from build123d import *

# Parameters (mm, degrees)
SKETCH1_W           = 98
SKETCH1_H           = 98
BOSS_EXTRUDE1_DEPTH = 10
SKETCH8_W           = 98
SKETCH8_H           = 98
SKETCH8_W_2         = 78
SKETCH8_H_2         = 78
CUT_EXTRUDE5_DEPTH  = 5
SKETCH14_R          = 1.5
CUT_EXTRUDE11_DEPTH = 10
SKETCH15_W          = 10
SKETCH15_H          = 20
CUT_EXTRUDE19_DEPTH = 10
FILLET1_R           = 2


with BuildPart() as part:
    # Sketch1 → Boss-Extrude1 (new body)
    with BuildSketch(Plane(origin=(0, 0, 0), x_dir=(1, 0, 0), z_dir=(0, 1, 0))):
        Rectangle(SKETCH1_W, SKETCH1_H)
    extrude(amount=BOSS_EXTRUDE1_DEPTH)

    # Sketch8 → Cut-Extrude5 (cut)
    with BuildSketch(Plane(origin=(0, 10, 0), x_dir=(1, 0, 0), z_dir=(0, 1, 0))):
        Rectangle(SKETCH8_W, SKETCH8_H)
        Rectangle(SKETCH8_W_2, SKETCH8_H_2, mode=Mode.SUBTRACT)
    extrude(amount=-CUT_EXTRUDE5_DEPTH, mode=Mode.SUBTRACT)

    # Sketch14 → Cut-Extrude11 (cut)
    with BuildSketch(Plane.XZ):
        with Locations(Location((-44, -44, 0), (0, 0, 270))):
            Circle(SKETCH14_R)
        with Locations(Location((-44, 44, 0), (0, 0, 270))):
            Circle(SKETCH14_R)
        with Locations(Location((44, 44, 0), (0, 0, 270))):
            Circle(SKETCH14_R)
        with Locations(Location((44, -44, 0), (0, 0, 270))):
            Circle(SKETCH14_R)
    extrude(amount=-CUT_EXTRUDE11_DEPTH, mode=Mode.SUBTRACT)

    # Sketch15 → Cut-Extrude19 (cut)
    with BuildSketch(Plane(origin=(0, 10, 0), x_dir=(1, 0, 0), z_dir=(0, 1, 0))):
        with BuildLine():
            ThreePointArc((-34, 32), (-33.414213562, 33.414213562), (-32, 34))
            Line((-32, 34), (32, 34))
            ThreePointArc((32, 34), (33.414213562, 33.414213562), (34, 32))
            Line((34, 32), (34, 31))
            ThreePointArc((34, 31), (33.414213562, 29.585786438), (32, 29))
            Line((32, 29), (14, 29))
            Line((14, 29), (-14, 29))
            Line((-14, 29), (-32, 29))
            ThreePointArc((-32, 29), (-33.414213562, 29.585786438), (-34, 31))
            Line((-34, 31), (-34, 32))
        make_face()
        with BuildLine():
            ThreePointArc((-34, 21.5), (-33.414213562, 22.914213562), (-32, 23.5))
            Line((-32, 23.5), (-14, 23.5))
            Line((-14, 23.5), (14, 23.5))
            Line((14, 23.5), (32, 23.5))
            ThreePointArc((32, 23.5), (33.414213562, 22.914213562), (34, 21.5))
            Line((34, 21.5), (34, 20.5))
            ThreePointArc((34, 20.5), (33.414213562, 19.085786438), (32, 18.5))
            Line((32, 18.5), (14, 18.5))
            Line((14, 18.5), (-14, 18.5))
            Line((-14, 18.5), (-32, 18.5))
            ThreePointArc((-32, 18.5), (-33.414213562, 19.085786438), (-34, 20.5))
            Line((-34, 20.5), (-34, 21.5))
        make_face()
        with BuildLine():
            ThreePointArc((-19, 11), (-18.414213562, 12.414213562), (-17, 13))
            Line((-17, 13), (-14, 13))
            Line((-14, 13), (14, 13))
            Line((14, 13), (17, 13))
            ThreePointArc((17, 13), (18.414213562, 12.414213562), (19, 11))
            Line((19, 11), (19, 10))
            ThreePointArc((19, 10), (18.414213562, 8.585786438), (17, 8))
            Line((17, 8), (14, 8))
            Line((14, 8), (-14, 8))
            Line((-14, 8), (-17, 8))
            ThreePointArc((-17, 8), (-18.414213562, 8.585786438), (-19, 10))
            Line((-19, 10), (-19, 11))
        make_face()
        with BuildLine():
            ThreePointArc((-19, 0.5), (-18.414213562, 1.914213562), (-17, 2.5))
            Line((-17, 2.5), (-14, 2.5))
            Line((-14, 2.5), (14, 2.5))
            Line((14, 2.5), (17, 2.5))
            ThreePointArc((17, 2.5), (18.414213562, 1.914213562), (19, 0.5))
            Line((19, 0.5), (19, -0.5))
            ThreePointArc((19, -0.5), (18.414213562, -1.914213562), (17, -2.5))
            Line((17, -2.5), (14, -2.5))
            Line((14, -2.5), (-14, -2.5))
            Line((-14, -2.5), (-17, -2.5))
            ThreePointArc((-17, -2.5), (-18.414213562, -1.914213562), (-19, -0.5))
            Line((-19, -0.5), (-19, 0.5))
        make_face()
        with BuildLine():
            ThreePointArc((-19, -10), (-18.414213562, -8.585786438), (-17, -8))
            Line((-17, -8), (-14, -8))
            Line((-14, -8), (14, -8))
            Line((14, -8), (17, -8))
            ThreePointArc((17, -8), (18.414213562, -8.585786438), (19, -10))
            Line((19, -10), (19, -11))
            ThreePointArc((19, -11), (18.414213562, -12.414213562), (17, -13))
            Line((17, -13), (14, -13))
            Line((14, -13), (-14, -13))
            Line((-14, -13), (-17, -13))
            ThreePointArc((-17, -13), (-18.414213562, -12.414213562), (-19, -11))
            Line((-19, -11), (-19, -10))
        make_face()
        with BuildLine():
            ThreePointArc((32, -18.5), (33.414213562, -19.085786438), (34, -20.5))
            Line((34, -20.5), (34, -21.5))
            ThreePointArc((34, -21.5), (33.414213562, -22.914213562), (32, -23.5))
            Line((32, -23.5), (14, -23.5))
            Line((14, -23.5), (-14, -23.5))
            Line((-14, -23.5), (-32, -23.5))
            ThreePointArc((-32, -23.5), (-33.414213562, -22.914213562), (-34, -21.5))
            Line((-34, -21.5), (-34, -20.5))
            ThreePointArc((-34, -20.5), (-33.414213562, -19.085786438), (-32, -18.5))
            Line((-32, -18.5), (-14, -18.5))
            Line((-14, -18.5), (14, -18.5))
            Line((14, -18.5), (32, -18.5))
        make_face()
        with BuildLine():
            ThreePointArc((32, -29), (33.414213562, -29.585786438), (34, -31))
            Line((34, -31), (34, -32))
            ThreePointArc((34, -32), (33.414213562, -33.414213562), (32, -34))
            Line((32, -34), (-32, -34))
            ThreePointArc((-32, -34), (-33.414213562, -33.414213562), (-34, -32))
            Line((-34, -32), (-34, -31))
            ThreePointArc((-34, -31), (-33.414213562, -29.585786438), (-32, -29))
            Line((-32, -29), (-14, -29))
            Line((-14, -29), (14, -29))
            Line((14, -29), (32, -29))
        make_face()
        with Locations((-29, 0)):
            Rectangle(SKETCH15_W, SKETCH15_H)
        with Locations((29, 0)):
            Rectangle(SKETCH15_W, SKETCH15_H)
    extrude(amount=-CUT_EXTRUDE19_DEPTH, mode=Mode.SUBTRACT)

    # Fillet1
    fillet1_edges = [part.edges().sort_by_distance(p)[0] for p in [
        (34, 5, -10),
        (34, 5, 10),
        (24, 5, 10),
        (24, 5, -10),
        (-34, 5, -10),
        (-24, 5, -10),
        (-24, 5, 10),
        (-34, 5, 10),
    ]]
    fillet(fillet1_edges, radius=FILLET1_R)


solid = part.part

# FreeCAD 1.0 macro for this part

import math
import FreeCAD as App
import Part
import Sketcher

V = App.Vector


def edges_at(feature, points):
    """Names of the edges that pass closest to the given points."""
    edges = feature.Shape.Edges
    near = lambda p: min(range(len(edges)), key=lambda i: edges[i].distToShape(Part.Vertex(*p))[0])
    return sorted({f"Edge{near(p) + 1}" for p in points})


def add_polygon(sketch, points):
    """Adds a closed chain of lines whose ends are joined by coincident constraints."""
    first, n = sketch.GeometryCount, len(points)
    for a, b in zip(points, points[1:] + points[:1]):
        sketch.addGeometry(Part.LineSegment(App.Vector(*a, 0), App.Vector(*b, 0)), False)
    for i in range(n):
        sketch.addConstraint(Sketcher.Constraint("Coincident", first + i, 2, first + (i + 1) % n, 1))

doc = App.newDocument("Part")
params = doc.addObject("Spreadsheet::Sheet", "Params")
for row, (alias, value) in enumerate([
    ("sketch1_width", "98 mm"),
    ("pad1_length", "10 mm"),
    ("sketch2_width", "98 mm"),
    ("sketch2_width2", "78 mm"),
    ("pocket1_length", "5 mm"),
    ("sketch3_diameter", "3 mm"),
    ("pocket2_length", "10 mm"),
    ("sketch4_radius", "2 mm"),
    ("sketch4_width", "64 mm"),
    ("sketch4_width2", "34 mm"),
    ("sketch4_width3", "10 mm"),
    ("sketch4_height", "1 mm"),
    ("pocket3_length", "10 mm"),
    ("fillet_radius", "2 mm"),
], start=1):
    params.set(f"A{row}", alias)
    params.set(f"B{row}", "=" + value)
    params.setAlias(f"B{row}", alias)

body = doc.addObject("PartDesign::Body", "Body")

sketch1 = body.newObject("Sketcher::SketchObject", "Sketch")
sketch1.AttachmentSupport = (doc.getObject("XZ_Plane"), [""])
sketch1.MapMode = "FlatFace"
add_polygon(sketch1, [(-49, -49), (-49, 49), (49, 49), (49, -49)])
sketch1.addConstraint([
    Sketcher.Constraint("Vertical", 0),
    Sketcher.Constraint("Horizontal", 1),
    Sketcher.Constraint("Vertical", 2),
    Sketcher.Constraint("Horizontal", 3),
    Sketcher.Constraint("Symmetric", 0, 2, 2, 2, -1, 1),
    Sketcher.Constraint("Equal", 3, 0),
    Sketcher.Constraint("DistanceX", 1, 1, 1, 2, 98.0),
])
sketch1.setExpression("Constraints[10]", "Params.sketch1_width")
pad1 = body.newObject("PartDesign::Pad", "Pad")
pad1.Profile = sketch1
pad1.setExpression("Length", "Params.pad1_length")
pad1.Reversed = True

sketch2 = body.newObject("Sketcher::SketchObject", "Sketch001")
sketch2.AttachmentSupport = (doc.getObject("XZ_Plane"), [""])
sketch2.MapMode = "FlatFace"
sketch2.AttachmentOffset = App.Placement(V(0, 0, -10), App.Rotation())
add_polygon(sketch2, [(-49, -49), (-49, 49), (49, 49), (49, -49)])
add_polygon(sketch2, [(39, 39), (-39, 39), (-39, -39), (39, -39)])
sketch2.addConstraint([
    Sketcher.Constraint("Vertical", 0),
    Sketcher.Constraint("Horizontal", 1),
    Sketcher.Constraint("Vertical", 2),
    Sketcher.Constraint("Horizontal", 3),
    Sketcher.Constraint("Horizontal", 4),
    Sketcher.Constraint("Vertical", 5),
    Sketcher.Constraint("Horizontal", 6),
    Sketcher.Constraint("Vertical", 7),
    Sketcher.Constraint("Symmetric", 0, 2, 2, 2, -1, 1),
    Sketcher.Constraint("Symmetric", 4, 2, 6, 2, -1, 1),
    Sketcher.Constraint("Equal", 3, 0),
    Sketcher.Constraint("Equal", 6, 5),
    Sketcher.Constraint("DistanceX", 1, 1, 1, 2, 98.0),
    Sketcher.Constraint("DistanceX", 4, 2, 4, 1, 78.0),
])
sketch2.setExpression("Constraints[20]", "Params.sketch2_width")
sketch2.setExpression("Constraints[21]", "Params.sketch2_width2")
pocket1 = body.newObject("PartDesign::Pocket", "Pocket")
pocket1.Profile = sketch2
pocket1.setExpression("Length", "Params.pocket1_length")
pocket1.Reversed = True

sketch3 = body.newObject("Sketcher::SketchObject", "Sketch002")
sketch3.AttachmentSupport = (doc.getObject("XZ_Plane"), [""])
sketch3.MapMode = "FlatFace"
sketch3.addGeometry([
    Part.Circle(V(-44, -44, 0), V(0, 0, 1), 1.5),
    Part.Circle(V(-44, 44, 0), V(0, 0, 1), 1.5),
    Part.Circle(V(44, 44, 0), V(0, 0, 1), 1.5),
    Part.Circle(V(44, -44, 0), V(0, 0, 1), 1.5),
], False)
sketch3.addConstraint([
    Sketcher.Constraint("Equal", 0, 1),
    Sketcher.Constraint("Equal", 1, 2),
    Sketcher.Constraint("Equal", 2, 3),
    Sketcher.Constraint("Symmetric", 0, 3, 2, 3, -1, 1),
    Sketcher.Constraint("Symmetric", 1, 3, 3, 3, -1, 1),
    Sketcher.Constraint("Symmetric", 1, 3, 2, 3, -2),
    Sketcher.Constraint("Diameter", 0, 3.0),
    Sketcher.Constraint("DistanceX", 0, 3, -1, 1, 44.0),
    Sketcher.Constraint("DistanceY", 0, 3, -1, 1, 44.0),
])
sketch3.setExpression("Constraints[6]", "Params.sketch3_diameter")
pocket2 = body.newObject("PartDesign::Pocket", "Pocket001")
pocket2.Profile = sketch3
pocket2.setExpression("Length", "Params.pocket2_length")

sketch4 = body.newObject("Sketcher::SketchObject", "Sketch003")
sketch4.AttachmentSupport = (doc.getObject("XZ_Plane"), [""])
sketch4.MapMode = "FlatFace"
sketch4.AttachmentOffset = App.Placement(V(0, 0, -10), App.Rotation())
sketch4.addGeometry(Part.ArcOfCircle(Part.Circle(V(-32, -32, 0), V(0, 0, 1), 2), math.radians(-180), math.radians(-90)), False)
sketch4.addGeometry(Part.LineSegment(V(-34, -32, 0), V(-34, -31, 0)), False)
sketch4.addGeometry(Part.ArcOfCircle(Part.Circle(V(-32, -31, 0), V(0, 0, 1), 2), math.radians(90), math.radians(180)), False)
sketch4.addGeometry(Part.LineSegment(V(-32, -29, 0), V(32, -29, 0)), False)
sketch4.addGeometry(Part.ArcOfCircle(Part.Circle(V(32, -31, 0), V(0, 0, 1), 2), math.radians(0), math.radians(90)), False)
sketch4.addGeometry(Part.LineSegment(V(34, -31, 0), V(34, -32, 0)), False)
sketch4.addGeometry(Part.ArcOfCircle(Part.Circle(V(32, -32, 0), V(0, 0, 1), 2), math.radians(-90), math.radians(0)), False)
sketch4.addGeometry(Part.LineSegment(V(32, -34, 0), V(-32, -34, 0)), False)
sketch4.addGeometry(Part.ArcOfCircle(Part.Circle(V(-32, -21.5, 0), V(0, 0, 1), 2), math.radians(-180), math.radians(-90)), False)
sketch4.addGeometry(Part.LineSegment(V(-34, -21.5, 0), V(-34, -20.5, 0)), False)
sketch4.addGeometry(Part.ArcOfCircle(Part.Circle(V(-32, -20.5, 0), V(0, 0, 1), 2), math.radians(90), math.radians(180)), False)
sketch4.addGeometry(Part.LineSegment(V(-32, -18.5, 0), V(32, -18.5, 0)), False)
sketch4.addGeometry(Part.ArcOfCircle(Part.Circle(V(32, -20.5, 0), V(0, 0, 1), 2), math.radians(0), math.radians(90)), False)
sketch4.addGeometry(Part.LineSegment(V(34, -20.5, 0), V(34, -21.5, 0)), False)
sketch4.addGeometry(Part.ArcOfCircle(Part.Circle(V(32, -21.5, 0), V(0, 0, 1), 2), math.radians(-90), math.radians(0)), False)
sketch4.addGeometry(Part.LineSegment(V(32, -23.5, 0), V(-32, -23.5, 0)), False)
sketch4.addGeometry(Part.ArcOfCircle(Part.Circle(V(-17, -11, 0), V(0, 0, 1), 2), math.radians(-180), math.radians(-90)), False)
sketch4.addGeometry(Part.LineSegment(V(-19, -11, 0), V(-19, -10, 0)), False)
sketch4.addGeometry(Part.ArcOfCircle(Part.Circle(V(-17, -10, 0), V(0, 0, 1), 2), math.radians(90), math.radians(180)), False)
sketch4.addGeometry(Part.LineSegment(V(-17, -8, 0), V(17, -8, 0)), False)
sketch4.addGeometry(Part.ArcOfCircle(Part.Circle(V(17, -10, 0), V(0, 0, 1), 2), math.radians(0), math.radians(90)), False)
sketch4.addGeometry(Part.LineSegment(V(19, -10, 0), V(19, -11, 0)), False)
sketch4.addGeometry(Part.ArcOfCircle(Part.Circle(V(17, -11, 0), V(0, 0, 1), 2), math.radians(-90), math.radians(0)), False)
sketch4.addGeometry(Part.LineSegment(V(17, -13, 0), V(-17, -13, 0)), False)
sketch4.addGeometry(Part.ArcOfCircle(Part.Circle(V(-17, -0.5, 0), V(0, 0, 1), 2), math.radians(-180), math.radians(-90)), False)
sketch4.addGeometry(Part.LineSegment(V(-19, -0.5, 0), V(-19, 0.5, 0)), False)
sketch4.addGeometry(Part.ArcOfCircle(Part.Circle(V(-17, 0.5, 0), V(0, 0, 1), 2), math.radians(90), math.radians(180)), False)
sketch4.addGeometry(Part.LineSegment(V(-17, 2.5, 0), V(17, 2.5, 0)), False)
sketch4.addGeometry(Part.ArcOfCircle(Part.Circle(V(17, 0.5, 0), V(0, 0, 1), 2), math.radians(0), math.radians(90)), False)
sketch4.addGeometry(Part.LineSegment(V(19, 0.5, 0), V(19, -0.5, 0)), False)
sketch4.addGeometry(Part.ArcOfCircle(Part.Circle(V(17, -0.5, 0), V(0, 0, 1), 2), math.radians(-90), math.radians(0)), False)
sketch4.addGeometry(Part.LineSegment(V(17, -2.5, 0), V(-17, -2.5, 0)), False)
sketch4.addGeometry(Part.ArcOfCircle(Part.Circle(V(-17, 10, 0), V(0, 0, 1), 2), math.radians(-180), math.radians(-90)), False)
sketch4.addGeometry(Part.LineSegment(V(-19, 10, 0), V(-19, 11, 0)), False)
sketch4.addGeometry(Part.ArcOfCircle(Part.Circle(V(-17, 11, 0), V(0, 0, 1), 2), math.radians(90), math.radians(180)), False)
sketch4.addGeometry(Part.LineSegment(V(-17, 13, 0), V(17, 13, 0)), False)
sketch4.addGeometry(Part.ArcOfCircle(Part.Circle(V(17, 11, 0), V(0, 0, 1), 2), math.radians(0), math.radians(90)), False)
sketch4.addGeometry(Part.LineSegment(V(19, 11, 0), V(19, 10, 0)), False)
sketch4.addGeometry(Part.ArcOfCircle(Part.Circle(V(17, 10, 0), V(0, 0, 1), 2), math.radians(-90), math.radians(0)), False)
sketch4.addGeometry(Part.LineSegment(V(17, 8, 0), V(-17, 8, 0)), False)
sketch4.addGeometry(Part.ArcOfCircle(Part.Circle(V(32, 20.5, 0), V(0, 0, 1), 2), math.radians(-90), math.radians(0)), False)
sketch4.addGeometry(Part.LineSegment(V(32, 18.5, 0), V(-32, 18.5, 0)), False)
sketch4.addGeometry(Part.ArcOfCircle(Part.Circle(V(-32, 20.5, 0), V(0, 0, 1), 2), math.radians(-180), math.radians(-90)), False)
sketch4.addGeometry(Part.LineSegment(V(-34, 20.5, 0), V(-34, 21.5, 0)), False)
sketch4.addGeometry(Part.ArcOfCircle(Part.Circle(V(-32, 21.5, 0), V(0, 0, 1), 2), math.radians(90), math.radians(180)), False)
sketch4.addGeometry(Part.LineSegment(V(-32, 23.5, 0), V(32, 23.5, 0)), False)
sketch4.addGeometry(Part.ArcOfCircle(Part.Circle(V(32, 21.5, 0), V(0, 0, 1), 2), math.radians(0), math.radians(90)), False)
sketch4.addGeometry(Part.LineSegment(V(34, 21.5, 0), V(34, 20.5, 0)), False)
sketch4.addGeometry(Part.ArcOfCircle(Part.Circle(V(32, 31, 0), V(0, 0, 1), 2), math.radians(-90), math.radians(0)), False)
sketch4.addGeometry(Part.LineSegment(V(32, 29, 0), V(-32, 29, 0)), False)
sketch4.addGeometry(Part.ArcOfCircle(Part.Circle(V(-32, 31, 0), V(0, 0, 1), 2), math.radians(-180), math.radians(-90)), False)
sketch4.addGeometry(Part.LineSegment(V(-34, 31, 0), V(-34, 32, 0)), False)
sketch4.addGeometry(Part.ArcOfCircle(Part.Circle(V(-32, 32, 0), V(0, 0, 1), 2), math.radians(90), math.radians(180)), False)
sketch4.addGeometry(Part.LineSegment(V(-32, 34, 0), V(32, 34, 0)), False)
sketch4.addGeometry(Part.ArcOfCircle(Part.Circle(V(32, 32, 0), V(0, 0, 1), 2), math.radians(0), math.radians(90)), False)
sketch4.addGeometry(Part.LineSegment(V(34, 32, 0), V(34, 31, 0)), False)
add_polygon(sketch4, [(-34, -10), (-34, 10), (-24, 10), (-24, -10)])
add_polygon(sketch4, [(24, -10), (24, 10), (34, 10), (34, -10)])
sketch4.addConstraint([
    Sketcher.Constraint("Tangent", 0, 1, 1, 1),
    Sketcher.Constraint("Tangent", 1, 2, 2, 2),
    Sketcher.Constraint("Tangent", 2, 1, 3, 1),
    Sketcher.Constraint("Tangent", 3, 2, 4, 2),
    Sketcher.Constraint("Tangent", 4, 1, 5, 1),
    Sketcher.Constraint("Tangent", 5, 2, 6, 2),
    Sketcher.Constraint("Tangent", 6, 1, 7, 1),
    Sketcher.Constraint("Tangent", 7, 2, 0, 2),
    Sketcher.Constraint("Tangent", 8, 1, 9, 1),
    Sketcher.Constraint("Tangent", 9, 2, 10, 2),
    Sketcher.Constraint("Tangent", 10, 1, 11, 1),
    Sketcher.Constraint("Tangent", 11, 2, 12, 2),
    Sketcher.Constraint("Tangent", 12, 1, 13, 1),
    Sketcher.Constraint("Tangent", 13, 2, 14, 2),
    Sketcher.Constraint("Tangent", 14, 1, 15, 1),
    Sketcher.Constraint("Tangent", 15, 2, 8, 2),
    Sketcher.Constraint("Tangent", 16, 1, 17, 1),
    Sketcher.Constraint("Tangent", 17, 2, 18, 2),
    Sketcher.Constraint("Tangent", 18, 1, 19, 1),
    Sketcher.Constraint("Tangent", 19, 2, 20, 2),
    Sketcher.Constraint("Tangent", 20, 1, 21, 1),
    Sketcher.Constraint("Tangent", 21, 2, 22, 2),
    Sketcher.Constraint("Tangent", 22, 1, 23, 1),
    Sketcher.Constraint("Tangent", 23, 2, 16, 2),
    Sketcher.Constraint("Tangent", 24, 1, 25, 1),
    Sketcher.Constraint("Tangent", 25, 2, 26, 2),
    Sketcher.Constraint("Tangent", 26, 1, 27, 1),
    Sketcher.Constraint("Tangent", 27, 2, 28, 2),
    Sketcher.Constraint("Tangent", 28, 1, 29, 1),
    Sketcher.Constraint("Tangent", 29, 2, 30, 2),
    Sketcher.Constraint("Tangent", 30, 1, 31, 1),
    Sketcher.Constraint("Tangent", 31, 2, 24, 2),
    Sketcher.Constraint("Tangent", 32, 1, 33, 1),
    Sketcher.Constraint("Tangent", 33, 2, 34, 2),
    Sketcher.Constraint("Tangent", 34, 1, 35, 1),
    Sketcher.Constraint("Tangent", 35, 2, 36, 2),
    Sketcher.Constraint("Tangent", 36, 1, 37, 1),
    Sketcher.Constraint("Tangent", 37, 2, 38, 2),
    Sketcher.Constraint("Tangent", 38, 1, 39, 1),
    Sketcher.Constraint("Tangent", 39, 2, 32, 2),
    Sketcher.Constraint("Tangent", 40, 1, 41, 1),
    Sketcher.Constraint("Tangent", 41, 2, 42, 2),
    Sketcher.Constraint("Tangent", 42, 1, 43, 1),
    Sketcher.Constraint("Tangent", 43, 2, 44, 2),
    Sketcher.Constraint("Tangent", 44, 1, 45, 1),
    Sketcher.Constraint("Tangent", 45, 2, 46, 2),
    Sketcher.Constraint("Tangent", 46, 1, 47, 1),
    Sketcher.Constraint("Tangent", 47, 2, 40, 2),
    Sketcher.Constraint("Tangent", 48, 1, 49, 1),
    Sketcher.Constraint("Tangent", 49, 2, 50, 2),
    Sketcher.Constraint("Tangent", 50, 1, 51, 1),
    Sketcher.Constraint("Tangent", 51, 2, 52, 2),
    Sketcher.Constraint("Tangent", 52, 1, 53, 1),
    Sketcher.Constraint("Tangent", 53, 2, 54, 2),
    Sketcher.Constraint("Tangent", 54, 1, 55, 1),
    Sketcher.Constraint("Tangent", 55, 2, 48, 2),
    Sketcher.Constraint("Vertical", 1),
    Sketcher.Constraint("Horizontal", 3),
    Sketcher.Constraint("Vertical", 5),
    Sketcher.Constraint("Horizontal", 7),
    Sketcher.Constraint("Vertical", 9),
    Sketcher.Constraint("Horizontal", 11),
    Sketcher.Constraint("Vertical", 13),
    Sketcher.Constraint("Horizontal", 15),
    Sketcher.Constraint("Vertical", 17),
    Sketcher.Constraint("Horizontal", 19),
    Sketcher.Constraint("Vertical", 21),
    Sketcher.Constraint("Horizontal", 23),
    Sketcher.Constraint("Vertical", 25),
    Sketcher.Constraint("Horizontal", 27),
    Sketcher.Constraint("Vertical", 29),
    Sketcher.Constraint("Horizontal", 31),
    Sketcher.Constraint("Vertical", 33),
    Sketcher.Constraint("Horizontal", 35),
    Sketcher.Constraint("Vertical", 37),
    Sketcher.Constraint("Horizontal", 39),
    Sketcher.Constraint("Horizontal", 41),
    Sketcher.Constraint("Vertical", 43),
    Sketcher.Constraint("Horizontal", 45),
    Sketcher.Constraint("Vertical", 47),
    Sketcher.Constraint("Horizontal", 49),
    Sketcher.Constraint("Vertical", 51),
    Sketcher.Constraint("Horizontal", 53),
    Sketcher.Constraint("Vertical", 55),
    Sketcher.Constraint("Vertical", 56),
    Sketcher.Constraint("Horizontal", 57),
    Sketcher.Constraint("Vertical", 58),
    Sketcher.Constraint("Horizontal", 59),
    Sketcher.Constraint("Vertical", 60),
    Sketcher.Constraint("Horizontal", 61),
    Sketcher.Constraint("Vertical", 62),
    Sketcher.Constraint("Horizontal", 63),
    Sketcher.Constraint("Equal", 0, 2),
    Sketcher.Constraint("Equal", 2, 4),
    Sketcher.Constraint("Equal", 4, 6),
    Sketcher.Constraint("Equal", 6, 8),
    Sketcher.Constraint("Equal", 8, 10),
    Sketcher.Constraint("Equal", 10, 12),
    Sketcher.Constraint("Equal", 12, 14),
    Sketcher.Constraint("Equal", 14, 16),
    Sketcher.Constraint("Equal", 16, 18),
    Sketcher.Constraint("Equal", 18, 20),
    Sketcher.Constraint("Equal", 20, 22),
    Sketcher.Constraint("Equal", 22, 24),
    Sketcher.Constraint("Equal", 24, 26),
    Sketcher.Constraint("Equal", 26, 28),
    Sketcher.Constraint("Equal", 28, 30),
    Sketcher.Constraint("Equal", 30, 32),
    Sketcher.Constraint("Equal", 32, 34),
    Sketcher.Constraint("Equal", 34, 36),
    Sketcher.Constraint("Equal", 36, 38),
    Sketcher.Constraint("Equal", 38, 40),
    Sketcher.Constraint("Equal", 40, 42),
    Sketcher.Constraint("Equal", 42, 44),
    Sketcher.Constraint("Equal", 44, 46),
    Sketcher.Constraint("Equal", 46, 48),
    Sketcher.Constraint("Equal", 48, 50),
    Sketcher.Constraint("Equal", 50, 52),
    Sketcher.Constraint("Equal", 52, 54),
    Sketcher.Constraint("Symmetric", 24, 3, 28, 3, -1, 1),
    Sketcher.Constraint("Symmetric", 20, 3, 32, 3, -1, 1),
    Sketcher.Constraint("Symmetric", 16, 3, 36, 3, -1, 1),
    Sketcher.Constraint("Symmetric", 10, 3, 40, 3, -1, 1),
    Sketcher.Constraint("Symmetric", 14, 3, 44, 3, -1, 1),
    Sketcher.Constraint("Symmetric", 2, 3, 48, 3, -1, 1),
    Sketcher.Constraint("Symmetric", 6, 3, 52, 3, -1, 1),
    Sketcher.Constraint("Symmetric", 58, 2, 60, 2, -1, 1),
    Sketcher.Constraint("Symmetric", 56, 2, 62, 2, -1, 1),
    Sketcher.Constraint("Horizontal", 37, 2, 56, 2),
    Sketcher.Constraint("Horizontal", 20, 1, 58, 2),
    Sketcher.Constraint("Vertical", 2, 3, 8, 3),
    Sketcher.Constraint("Vertical", 6, 3, 12, 3),
    Sketcher.Constraint("Vertical", 18, 3, 24, 3),
    Sketcher.Constraint("Vertical", 22, 3, 28, 3),
    Sketcher.Constraint("Vertical", 14, 3, 40, 3),
    Sketcher.Constraint("Vertical", 51, 2, 56, 2),
    Sketcher.Constraint("Equal", 5, 9),
    Sketcher.Constraint("Equal", 13, 17),
    Sketcher.Constraint("Equal", 21, 25),
    Sketcher.Constraint("Radius", 0, 2.0),
    Sketcher.Constraint("DistanceX", 3, 1, 3, 2, 64.0),
    Sketcher.Constraint("DistanceX", 19, 1, 19, 2, 34.0),
    Sketcher.Constraint("DistanceX", 57, 1, 57, 2, 10.0),
    Sketcher.Constraint("DistanceY", 1, 1, 1, 2, 1.0),
    Sketcher.Constraint("DistanceY", 56, 1, 56, 2, 20.0),
    Sketcher.Constraint("DistanceY", 0, 3, -1, 1, 32.0),
    Sketcher.Constraint("DistanceY", 8, 3, -1, 1, 21.5),
])
sketch4.setExpression("Constraints[147]", "Params.sketch4_radius")
sketch4.setExpression("Constraints[148]", "Params.sketch4_width")
sketch4.setExpression("Constraints[149]", "Params.sketch4_width2")
sketch4.setExpression("Constraints[150]", "Params.sketch4_width3")
sketch4.setExpression("Constraints[151]", "Params.sketch4_height")
pocket3 = body.newObject("PartDesign::Pocket", "Pocket002")
pocket3.Profile = sketch4
pocket3.setExpression("Length", "Params.pocket3_length")
pocket3.Reversed = True
doc.recompute()

fillet = body.newObject("PartDesign::Fillet", "Fillet")
fillet.Base = (pocket3, edges_at(pocket3, [
    (34, 5, -10),
    (34, 5, 10),
    (24, 5, 10),
    (24, 5, -10),
    (-34, 5, -10),
    (-24, 5, -10),
    (-24, 5, 10),
    (-34, 5, 10),
]))
fillet.setExpression("Radius", "Params.fillet_radius")

doc.recompute()
